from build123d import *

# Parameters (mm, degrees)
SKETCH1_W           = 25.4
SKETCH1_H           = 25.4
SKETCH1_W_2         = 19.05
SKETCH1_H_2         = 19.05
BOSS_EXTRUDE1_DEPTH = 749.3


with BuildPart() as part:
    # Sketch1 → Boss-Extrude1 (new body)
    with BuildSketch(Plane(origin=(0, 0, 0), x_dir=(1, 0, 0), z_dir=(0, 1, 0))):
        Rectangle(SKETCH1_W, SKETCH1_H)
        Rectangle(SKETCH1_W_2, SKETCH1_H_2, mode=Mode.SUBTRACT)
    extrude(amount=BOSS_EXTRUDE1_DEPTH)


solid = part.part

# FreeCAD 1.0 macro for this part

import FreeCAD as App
import Part
import Sketcher
Q = App.Units.Quantity


def add_polygon(sketch, points):
    """Adds a closed chain of lines whose ends are joined by coincident constraints."""
    first, n = sketch.GeometryCount, len(points)
    for a, b in zip(points, points[1:] + points[:1]):
        sketch.addGeometry(Part.LineSegment(App.Vector(*a, 0), App.Vector(*b, 0)), False)
    for i in range(n):
        sketch.addConstraint(Sketcher.Constraint("Coincident", first + i, 2, first + (i + 1) % n, 1))

doc = App.newDocument("Part")
params = doc.addObject("Spreadsheet::Sheet", "Params")
for row, (alias, value) in enumerate([
    ("sketch1_width", "1 in"),
    ("sketch1_width2", "0.75 in"),
    ("pad1_length", "29.5 in"),
], start=1):
    params.set(f"A{row}", alias)
    params.set(f"B{row}", "=" + value)
    params.setAlias(f"B{row}", alias)

body = doc.addObject("PartDesign::Body", "Body")

sketch1 = doc.addObject("Sketcher::SketchObject", "Sketch")
body.addObject(sketch1)
sketch1.AttachmentSupport = (doc.XZ_Plane, [""])
sketch1.MapMode = "FlatFace"
add_polygon(sketch1, [(-13, -13), (-13, 13), (13, 13), (13, -13)])
add_polygon(sketch1, [(10, 10), (-10, 10), (-10, -10), (10, -10)])
sketch1.addConstraint([
    Sketcher.Constraint("Vertical", 0),
    Sketcher.Constraint("Horizontal", 1),
    Sketcher.Constraint("Vertical", 2),
    Sketcher.Constraint("Horizontal", 3),
    Sketcher.Constraint("Horizontal", 4),
    Sketcher.Constraint("Vertical", 5),
    Sketcher.Constraint("Horizontal", 6),
    Sketcher.Constraint("Vertical", 7),
    Sketcher.Constraint("Symmetric", 0, 2, 2, 2, -1, 1),
    Sketcher.Constraint("Symmetric", 4, 2, 6, 2, -1, 1),
    Sketcher.Constraint("Equal", 3, 0),
    Sketcher.Constraint("Equal", 6, 5),
    Sketcher.Constraint("DistanceX", 1, 1, 1, 2, Q("1 in")),
    Sketcher.Constraint("DistanceX", 4, 2, 4, 1, Q("0.75 in")),
])
sketch1.setExpression("Constraints[20]", "Params.sketch1_width")
sketch1.setExpression("Constraints[21]", "Params.sketch1_width2")
pad1 = doc.addObject("PartDesign::Pad", "Pad")
body.addObject(pad1)
pad1.Profile = sketch1
pad1.setExpression("Length", "Params.pad1_length")
pad1.Reversed = True

doc.recompute()
